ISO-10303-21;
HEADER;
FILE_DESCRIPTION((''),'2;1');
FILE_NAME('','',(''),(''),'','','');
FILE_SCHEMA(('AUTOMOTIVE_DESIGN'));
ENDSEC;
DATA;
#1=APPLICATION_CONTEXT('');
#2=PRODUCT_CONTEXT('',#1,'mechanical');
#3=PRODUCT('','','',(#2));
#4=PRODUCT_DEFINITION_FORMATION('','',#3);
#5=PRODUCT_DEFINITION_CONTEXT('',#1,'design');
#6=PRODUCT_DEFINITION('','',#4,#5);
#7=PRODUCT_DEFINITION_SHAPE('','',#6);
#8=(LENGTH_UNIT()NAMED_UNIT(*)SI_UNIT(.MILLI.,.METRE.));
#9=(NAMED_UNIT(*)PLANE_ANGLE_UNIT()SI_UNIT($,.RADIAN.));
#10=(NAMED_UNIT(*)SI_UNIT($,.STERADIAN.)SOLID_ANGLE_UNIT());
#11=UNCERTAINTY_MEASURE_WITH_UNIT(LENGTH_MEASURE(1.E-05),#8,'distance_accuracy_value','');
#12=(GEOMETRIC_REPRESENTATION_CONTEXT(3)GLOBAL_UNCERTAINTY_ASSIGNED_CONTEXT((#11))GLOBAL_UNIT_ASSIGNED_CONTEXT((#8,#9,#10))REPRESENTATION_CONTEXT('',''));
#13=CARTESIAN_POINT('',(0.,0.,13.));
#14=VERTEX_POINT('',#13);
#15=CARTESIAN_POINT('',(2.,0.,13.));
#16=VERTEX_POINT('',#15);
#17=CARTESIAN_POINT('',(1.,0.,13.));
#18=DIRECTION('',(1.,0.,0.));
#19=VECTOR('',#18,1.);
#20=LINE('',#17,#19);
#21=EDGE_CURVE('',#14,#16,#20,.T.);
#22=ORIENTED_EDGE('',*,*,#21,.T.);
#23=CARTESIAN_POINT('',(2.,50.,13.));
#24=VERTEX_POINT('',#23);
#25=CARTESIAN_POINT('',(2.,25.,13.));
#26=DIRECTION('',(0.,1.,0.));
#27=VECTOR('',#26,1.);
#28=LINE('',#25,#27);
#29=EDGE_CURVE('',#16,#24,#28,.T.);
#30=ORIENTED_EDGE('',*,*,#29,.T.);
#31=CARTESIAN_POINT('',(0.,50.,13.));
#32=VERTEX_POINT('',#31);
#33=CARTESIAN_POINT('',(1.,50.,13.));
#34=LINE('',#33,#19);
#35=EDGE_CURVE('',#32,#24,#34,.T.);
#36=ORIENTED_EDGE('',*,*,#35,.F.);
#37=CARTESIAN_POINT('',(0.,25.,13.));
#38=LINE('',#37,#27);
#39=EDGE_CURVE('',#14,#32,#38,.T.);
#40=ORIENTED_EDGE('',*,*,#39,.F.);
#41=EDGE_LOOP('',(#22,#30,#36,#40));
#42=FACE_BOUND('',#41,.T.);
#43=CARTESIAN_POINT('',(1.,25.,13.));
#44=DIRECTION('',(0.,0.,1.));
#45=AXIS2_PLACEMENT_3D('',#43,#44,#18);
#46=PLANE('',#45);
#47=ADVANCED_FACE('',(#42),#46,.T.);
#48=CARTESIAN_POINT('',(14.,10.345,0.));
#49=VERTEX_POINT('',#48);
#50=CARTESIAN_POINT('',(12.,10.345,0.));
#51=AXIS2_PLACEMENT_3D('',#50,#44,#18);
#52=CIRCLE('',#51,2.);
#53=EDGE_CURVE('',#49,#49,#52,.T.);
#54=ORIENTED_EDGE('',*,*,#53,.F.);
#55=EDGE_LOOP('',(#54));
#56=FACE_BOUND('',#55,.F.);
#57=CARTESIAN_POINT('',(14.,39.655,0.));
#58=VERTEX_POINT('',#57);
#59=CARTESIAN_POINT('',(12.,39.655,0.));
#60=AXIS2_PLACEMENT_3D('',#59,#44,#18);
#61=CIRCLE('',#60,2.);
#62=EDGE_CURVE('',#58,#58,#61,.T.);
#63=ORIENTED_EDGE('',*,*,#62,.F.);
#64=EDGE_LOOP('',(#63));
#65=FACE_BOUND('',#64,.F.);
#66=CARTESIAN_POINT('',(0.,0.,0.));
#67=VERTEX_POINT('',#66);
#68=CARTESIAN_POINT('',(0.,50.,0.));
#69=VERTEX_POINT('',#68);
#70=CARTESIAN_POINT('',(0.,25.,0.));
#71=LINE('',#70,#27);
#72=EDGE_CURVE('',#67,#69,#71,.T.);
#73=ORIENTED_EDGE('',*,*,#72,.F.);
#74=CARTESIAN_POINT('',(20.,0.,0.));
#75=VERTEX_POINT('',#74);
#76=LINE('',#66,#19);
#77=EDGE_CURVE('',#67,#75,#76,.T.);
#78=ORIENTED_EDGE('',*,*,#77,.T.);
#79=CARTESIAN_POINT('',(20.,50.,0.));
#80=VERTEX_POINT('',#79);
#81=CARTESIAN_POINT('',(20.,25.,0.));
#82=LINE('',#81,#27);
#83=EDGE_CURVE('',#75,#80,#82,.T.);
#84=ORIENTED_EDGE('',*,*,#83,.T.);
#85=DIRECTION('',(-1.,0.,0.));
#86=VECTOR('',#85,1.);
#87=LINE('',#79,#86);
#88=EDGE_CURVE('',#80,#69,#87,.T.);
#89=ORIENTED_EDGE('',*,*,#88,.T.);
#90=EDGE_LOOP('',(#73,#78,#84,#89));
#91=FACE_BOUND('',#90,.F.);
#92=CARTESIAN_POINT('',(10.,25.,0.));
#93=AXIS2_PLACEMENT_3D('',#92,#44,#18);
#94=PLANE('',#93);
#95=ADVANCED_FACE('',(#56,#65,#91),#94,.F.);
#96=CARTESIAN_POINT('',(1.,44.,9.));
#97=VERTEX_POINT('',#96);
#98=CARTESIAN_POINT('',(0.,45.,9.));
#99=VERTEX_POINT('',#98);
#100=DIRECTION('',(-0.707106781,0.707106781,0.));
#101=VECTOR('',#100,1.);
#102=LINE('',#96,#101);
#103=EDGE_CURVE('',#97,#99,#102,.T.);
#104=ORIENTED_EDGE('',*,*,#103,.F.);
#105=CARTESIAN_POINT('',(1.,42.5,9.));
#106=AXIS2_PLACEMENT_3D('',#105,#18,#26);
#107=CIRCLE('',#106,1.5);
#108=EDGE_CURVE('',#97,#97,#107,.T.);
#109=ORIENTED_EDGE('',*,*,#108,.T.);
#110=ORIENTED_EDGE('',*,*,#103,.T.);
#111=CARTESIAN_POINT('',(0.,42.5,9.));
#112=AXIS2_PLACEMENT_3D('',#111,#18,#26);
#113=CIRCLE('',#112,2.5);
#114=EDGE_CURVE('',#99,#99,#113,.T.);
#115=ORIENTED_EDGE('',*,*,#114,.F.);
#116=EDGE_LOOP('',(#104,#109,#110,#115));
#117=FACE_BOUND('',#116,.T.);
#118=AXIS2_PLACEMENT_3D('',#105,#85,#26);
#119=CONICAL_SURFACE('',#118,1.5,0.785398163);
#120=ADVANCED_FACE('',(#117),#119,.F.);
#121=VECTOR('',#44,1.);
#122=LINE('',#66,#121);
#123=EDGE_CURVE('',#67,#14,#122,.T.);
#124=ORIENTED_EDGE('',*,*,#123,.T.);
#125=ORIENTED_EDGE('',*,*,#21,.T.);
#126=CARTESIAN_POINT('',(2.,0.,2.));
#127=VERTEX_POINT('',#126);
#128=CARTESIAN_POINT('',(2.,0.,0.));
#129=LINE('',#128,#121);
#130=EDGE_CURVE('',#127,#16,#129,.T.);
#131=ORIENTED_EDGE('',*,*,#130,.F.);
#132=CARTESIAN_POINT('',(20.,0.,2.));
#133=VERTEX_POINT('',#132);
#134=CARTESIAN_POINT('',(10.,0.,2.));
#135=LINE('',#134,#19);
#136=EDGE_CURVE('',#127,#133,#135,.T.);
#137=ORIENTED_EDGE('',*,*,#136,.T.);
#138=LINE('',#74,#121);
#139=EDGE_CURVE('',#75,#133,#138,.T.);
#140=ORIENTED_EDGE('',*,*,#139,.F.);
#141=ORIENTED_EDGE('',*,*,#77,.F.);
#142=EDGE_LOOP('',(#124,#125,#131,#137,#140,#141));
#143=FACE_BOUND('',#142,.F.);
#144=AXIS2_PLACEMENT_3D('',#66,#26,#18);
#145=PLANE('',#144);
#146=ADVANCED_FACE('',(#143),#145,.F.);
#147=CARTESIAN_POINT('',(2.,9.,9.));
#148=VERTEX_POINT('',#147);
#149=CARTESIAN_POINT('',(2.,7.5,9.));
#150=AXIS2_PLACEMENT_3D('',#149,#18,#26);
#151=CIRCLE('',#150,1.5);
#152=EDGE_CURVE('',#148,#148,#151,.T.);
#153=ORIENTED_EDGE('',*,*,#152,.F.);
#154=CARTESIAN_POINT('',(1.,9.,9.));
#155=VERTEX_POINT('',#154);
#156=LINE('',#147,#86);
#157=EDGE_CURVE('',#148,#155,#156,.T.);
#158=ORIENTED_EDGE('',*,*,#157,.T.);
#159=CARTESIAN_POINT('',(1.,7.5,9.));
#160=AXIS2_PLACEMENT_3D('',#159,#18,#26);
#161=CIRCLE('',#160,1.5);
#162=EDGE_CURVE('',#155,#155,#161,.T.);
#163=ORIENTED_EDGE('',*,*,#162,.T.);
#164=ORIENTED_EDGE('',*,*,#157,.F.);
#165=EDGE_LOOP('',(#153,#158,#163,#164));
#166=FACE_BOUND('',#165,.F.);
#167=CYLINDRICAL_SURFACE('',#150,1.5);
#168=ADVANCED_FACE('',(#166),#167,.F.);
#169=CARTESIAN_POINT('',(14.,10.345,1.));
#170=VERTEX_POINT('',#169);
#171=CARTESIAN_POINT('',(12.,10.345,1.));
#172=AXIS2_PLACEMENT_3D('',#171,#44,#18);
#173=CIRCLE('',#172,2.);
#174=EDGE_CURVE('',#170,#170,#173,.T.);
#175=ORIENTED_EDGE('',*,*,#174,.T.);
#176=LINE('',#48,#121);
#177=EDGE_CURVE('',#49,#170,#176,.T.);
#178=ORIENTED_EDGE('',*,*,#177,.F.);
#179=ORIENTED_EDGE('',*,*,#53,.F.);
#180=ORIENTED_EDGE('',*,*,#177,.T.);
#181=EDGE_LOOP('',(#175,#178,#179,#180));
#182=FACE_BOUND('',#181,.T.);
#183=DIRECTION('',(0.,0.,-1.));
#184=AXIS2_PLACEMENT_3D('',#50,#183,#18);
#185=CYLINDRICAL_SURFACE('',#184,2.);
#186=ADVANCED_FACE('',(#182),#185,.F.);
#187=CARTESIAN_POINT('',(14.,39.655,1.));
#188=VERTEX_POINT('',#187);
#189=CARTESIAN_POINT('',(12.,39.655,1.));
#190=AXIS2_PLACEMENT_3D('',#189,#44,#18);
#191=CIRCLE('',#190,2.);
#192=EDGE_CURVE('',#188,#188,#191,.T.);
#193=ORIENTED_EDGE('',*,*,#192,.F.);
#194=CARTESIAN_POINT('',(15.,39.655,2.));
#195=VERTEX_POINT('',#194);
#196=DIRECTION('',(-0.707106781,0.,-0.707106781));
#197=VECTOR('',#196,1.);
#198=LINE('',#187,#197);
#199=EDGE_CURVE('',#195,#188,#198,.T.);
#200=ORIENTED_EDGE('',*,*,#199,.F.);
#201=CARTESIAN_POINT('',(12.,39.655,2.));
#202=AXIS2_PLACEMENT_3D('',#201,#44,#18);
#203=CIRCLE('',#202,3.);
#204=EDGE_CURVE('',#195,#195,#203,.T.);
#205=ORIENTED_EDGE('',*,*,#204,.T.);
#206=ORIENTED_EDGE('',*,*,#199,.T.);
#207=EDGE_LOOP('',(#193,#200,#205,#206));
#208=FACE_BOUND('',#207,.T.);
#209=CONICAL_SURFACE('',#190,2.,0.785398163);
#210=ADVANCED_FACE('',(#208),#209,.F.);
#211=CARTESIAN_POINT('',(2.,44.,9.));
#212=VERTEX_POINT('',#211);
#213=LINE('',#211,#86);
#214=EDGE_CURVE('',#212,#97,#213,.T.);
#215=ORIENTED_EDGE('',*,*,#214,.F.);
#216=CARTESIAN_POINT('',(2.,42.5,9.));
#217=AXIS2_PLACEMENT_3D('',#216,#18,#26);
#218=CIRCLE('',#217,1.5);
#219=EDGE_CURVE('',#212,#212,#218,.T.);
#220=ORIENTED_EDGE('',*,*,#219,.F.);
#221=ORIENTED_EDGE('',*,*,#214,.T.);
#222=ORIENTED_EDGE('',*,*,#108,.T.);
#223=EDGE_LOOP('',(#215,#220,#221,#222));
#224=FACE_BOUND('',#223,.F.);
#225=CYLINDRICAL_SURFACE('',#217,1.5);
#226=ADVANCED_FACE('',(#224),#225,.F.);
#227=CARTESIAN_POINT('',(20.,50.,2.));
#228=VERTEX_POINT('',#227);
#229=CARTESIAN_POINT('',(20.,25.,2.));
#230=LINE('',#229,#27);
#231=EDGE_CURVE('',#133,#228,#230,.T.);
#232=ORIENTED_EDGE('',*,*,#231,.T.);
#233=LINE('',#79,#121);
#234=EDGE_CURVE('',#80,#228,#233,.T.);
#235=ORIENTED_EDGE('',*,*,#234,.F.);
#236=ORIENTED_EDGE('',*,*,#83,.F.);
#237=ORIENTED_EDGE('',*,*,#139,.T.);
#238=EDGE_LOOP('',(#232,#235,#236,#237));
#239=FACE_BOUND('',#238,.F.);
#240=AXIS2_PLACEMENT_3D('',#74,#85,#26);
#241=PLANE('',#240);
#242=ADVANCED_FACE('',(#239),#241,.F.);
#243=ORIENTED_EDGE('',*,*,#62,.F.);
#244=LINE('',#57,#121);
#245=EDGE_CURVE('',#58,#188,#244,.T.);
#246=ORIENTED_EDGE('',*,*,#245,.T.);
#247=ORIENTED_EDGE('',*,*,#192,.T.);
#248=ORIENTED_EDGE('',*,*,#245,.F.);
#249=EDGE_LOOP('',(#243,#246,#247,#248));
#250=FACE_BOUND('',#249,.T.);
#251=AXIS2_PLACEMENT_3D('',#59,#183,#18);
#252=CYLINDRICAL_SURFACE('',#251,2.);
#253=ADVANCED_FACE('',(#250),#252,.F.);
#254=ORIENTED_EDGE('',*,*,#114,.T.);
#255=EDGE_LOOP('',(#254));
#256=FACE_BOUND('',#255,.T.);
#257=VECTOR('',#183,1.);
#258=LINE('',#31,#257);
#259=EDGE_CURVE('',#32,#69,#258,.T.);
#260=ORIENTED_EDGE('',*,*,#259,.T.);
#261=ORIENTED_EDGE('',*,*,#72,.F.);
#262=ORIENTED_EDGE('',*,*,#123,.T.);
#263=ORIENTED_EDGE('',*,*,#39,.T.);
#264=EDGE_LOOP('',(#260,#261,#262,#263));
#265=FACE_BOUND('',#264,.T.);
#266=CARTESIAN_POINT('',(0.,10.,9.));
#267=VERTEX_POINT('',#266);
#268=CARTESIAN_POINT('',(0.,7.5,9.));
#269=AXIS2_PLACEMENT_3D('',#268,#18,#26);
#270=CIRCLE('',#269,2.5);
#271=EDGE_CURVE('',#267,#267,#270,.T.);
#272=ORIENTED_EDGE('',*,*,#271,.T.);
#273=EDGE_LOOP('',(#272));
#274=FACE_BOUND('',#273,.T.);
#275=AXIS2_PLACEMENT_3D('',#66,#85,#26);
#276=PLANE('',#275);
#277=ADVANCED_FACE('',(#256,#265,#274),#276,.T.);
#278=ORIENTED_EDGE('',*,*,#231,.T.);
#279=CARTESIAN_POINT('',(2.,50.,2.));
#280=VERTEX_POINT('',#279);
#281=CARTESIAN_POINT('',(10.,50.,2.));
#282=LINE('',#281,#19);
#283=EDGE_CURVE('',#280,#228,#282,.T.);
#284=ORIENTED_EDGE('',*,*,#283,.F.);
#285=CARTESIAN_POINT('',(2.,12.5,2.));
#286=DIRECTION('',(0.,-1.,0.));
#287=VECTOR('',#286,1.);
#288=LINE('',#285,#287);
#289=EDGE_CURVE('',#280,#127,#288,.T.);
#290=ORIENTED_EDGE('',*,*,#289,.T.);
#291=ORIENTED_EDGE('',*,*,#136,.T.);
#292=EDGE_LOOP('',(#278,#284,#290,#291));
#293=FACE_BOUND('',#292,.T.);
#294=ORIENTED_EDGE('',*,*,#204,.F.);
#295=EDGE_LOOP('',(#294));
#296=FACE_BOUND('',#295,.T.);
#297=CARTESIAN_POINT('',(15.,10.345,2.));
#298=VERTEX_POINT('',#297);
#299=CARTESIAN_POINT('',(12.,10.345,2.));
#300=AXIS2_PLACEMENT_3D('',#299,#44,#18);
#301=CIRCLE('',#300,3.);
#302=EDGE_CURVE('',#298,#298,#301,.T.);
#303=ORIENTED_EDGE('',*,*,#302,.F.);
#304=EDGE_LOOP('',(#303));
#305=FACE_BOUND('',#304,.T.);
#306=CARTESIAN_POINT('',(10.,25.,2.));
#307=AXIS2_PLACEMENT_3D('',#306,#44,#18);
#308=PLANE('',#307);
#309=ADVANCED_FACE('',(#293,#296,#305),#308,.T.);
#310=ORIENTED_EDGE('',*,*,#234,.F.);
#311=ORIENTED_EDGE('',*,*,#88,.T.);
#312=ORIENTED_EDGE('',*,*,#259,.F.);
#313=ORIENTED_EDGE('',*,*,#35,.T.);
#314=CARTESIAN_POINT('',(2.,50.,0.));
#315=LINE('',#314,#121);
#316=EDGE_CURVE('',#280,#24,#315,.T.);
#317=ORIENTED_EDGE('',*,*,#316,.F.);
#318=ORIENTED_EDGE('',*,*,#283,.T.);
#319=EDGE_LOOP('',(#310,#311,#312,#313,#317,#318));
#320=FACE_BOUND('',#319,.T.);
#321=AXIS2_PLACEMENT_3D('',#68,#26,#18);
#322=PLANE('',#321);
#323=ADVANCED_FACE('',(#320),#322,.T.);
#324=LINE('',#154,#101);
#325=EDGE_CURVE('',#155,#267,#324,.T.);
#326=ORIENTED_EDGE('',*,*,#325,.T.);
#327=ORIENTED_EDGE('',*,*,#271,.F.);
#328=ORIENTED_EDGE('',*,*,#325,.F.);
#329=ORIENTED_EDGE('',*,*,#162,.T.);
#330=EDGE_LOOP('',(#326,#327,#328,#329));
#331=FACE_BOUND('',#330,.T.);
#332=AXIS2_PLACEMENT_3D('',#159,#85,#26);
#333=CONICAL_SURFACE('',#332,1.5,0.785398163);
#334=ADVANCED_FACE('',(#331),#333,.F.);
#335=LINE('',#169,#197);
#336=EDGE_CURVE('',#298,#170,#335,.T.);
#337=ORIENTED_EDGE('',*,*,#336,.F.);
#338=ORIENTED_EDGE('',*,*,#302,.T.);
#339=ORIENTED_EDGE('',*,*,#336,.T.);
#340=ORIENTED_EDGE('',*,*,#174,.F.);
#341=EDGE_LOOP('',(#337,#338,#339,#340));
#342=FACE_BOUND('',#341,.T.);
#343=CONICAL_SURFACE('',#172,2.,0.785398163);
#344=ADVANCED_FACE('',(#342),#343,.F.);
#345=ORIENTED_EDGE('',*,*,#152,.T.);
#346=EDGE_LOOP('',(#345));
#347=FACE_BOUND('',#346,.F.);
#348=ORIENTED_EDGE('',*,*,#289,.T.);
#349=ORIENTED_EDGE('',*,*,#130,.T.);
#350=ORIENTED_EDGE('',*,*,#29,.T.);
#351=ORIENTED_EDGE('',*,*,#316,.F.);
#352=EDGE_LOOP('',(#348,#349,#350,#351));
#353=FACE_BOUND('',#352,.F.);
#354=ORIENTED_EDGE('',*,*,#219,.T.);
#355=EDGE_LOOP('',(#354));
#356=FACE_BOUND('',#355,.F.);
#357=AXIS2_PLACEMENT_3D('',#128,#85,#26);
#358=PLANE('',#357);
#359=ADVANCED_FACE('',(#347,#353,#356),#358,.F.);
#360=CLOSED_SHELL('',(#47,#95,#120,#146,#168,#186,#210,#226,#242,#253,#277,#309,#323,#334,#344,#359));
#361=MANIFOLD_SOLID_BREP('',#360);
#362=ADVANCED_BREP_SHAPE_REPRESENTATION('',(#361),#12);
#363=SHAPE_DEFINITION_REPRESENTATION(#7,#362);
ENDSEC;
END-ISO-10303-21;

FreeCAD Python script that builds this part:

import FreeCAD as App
import Part
import Sketcher
Q = App.Units.Quantity


def edges_at(feature, points):
    """Names of the edges that pass closest to the given points."""
    edges = feature.Shape.Edges
    near = lambda p: min(range(len(edges)), key=lambda i: edges[i].distToShape(Part.Vertex(*p))[0])
    return sorted({f"Edge{near(p) + 1}" for p in points})

doc = App.newDocument("Part")
params = doc.addObject("Spreadsheet::Sheet", "Params")
for row, (alias, value) in enumerate([
    ("sketch1_diameter", "4 mm"),
    ("sketch1_width", "20 mm"),
    ("sketch1_height", "50 mm"),
    ("pad1_length", "2 mm"),
    ("sketch2_width", "2 mm"),
    ("sketch2_height", "50 mm"),
    ("pad2_length", "13 mm"),
    ("sketch3_diameter", "3 mm"),
    ("pocket1_length", "10 mm"),
    ("chamfer_size", "1 mm"),
    ("chamfer2_size", "1 mm"),
], start=1):
    params.set(f"A{row}", alias)
    params.set(f"B{row}", "=" + value)
    params.setAlias(f"B{row}", alias)

body = doc.addObject("PartDesign::Body", "Body")

# Sketch on XY plane
sketch1 = body.newObject("Sketcher::SketchObject", "Sketch")
sketch1.AttachmentSupport = (doc.getObject("XY_Plane"), [""])
sketch1.MapMode = "FlatFace"
sketch1.addGeometry(Part.LineSegment(App.Vector(0, 50, 0), App.Vector(0, 0, 0)), False)
sketch1.addGeometry(Part.LineSegment(App.Vector(0, 0, 0), App.Vector(20, 0, 0)), False)
sketch1.addGeometry(Part.LineSegment(App.Vector(20, 0, 0), App.Vector(20, 50, 0)), False)
sketch1.addGeometry(Part.LineSegment(App.Vector(20, 50, 0), App.Vector(0, 50, 0)), False)
sketch1.addGeometry(Part.Circle(App.Vector(12, 10.3, 0), App.Vector(0, 0, 1), 2), False)
sketch1.addGeometry(Part.Circle(App.Vector(12, 39.7, 0), App.Vector(0, 0, 1), 2), False)
sketch1.addConstraint(Sketcher.Constraint("Coincident", 0, 2, 1, 1))
sketch1.addConstraint(Sketcher.Constraint("Coincident", 1, 2, 2, 1))
sketch1.addConstraint(Sketcher.Constraint("Coincident", 2, 2, 3, 1))
sketch1.addConstraint(Sketcher.Constraint("Coincident", 3, 2, 0, 1))
sketch1.addConstraint(Sketcher.Constraint("Vertical", 0))
sketch1.addConstraint(Sketcher.Constraint("Horizontal", 1))
sketch1.addConstraint(Sketcher.Constraint("Vertical", 2))
sketch1.addConstraint(Sketcher.Constraint("Horizontal", 3))
sketch1.addConstraint(Sketcher.Constraint("Coincident", 0, 2, -1, 1))
sketch1.addConstraint(Sketcher.Constraint("Equal", 4, 5))
sketch1.addConstraint(Sketcher.Constraint("Vertical", 4, 3, 5, 3))
sketch1.addConstraint(Sketcher.Constraint("Diameter", 4, Q("4 mm")))
sketch1.addConstraint(Sketcher.Constraint("DistanceX", 1, 1, 1, 2, Q("20 mm")))
sketch1.addConstraint(Sketcher.Constraint("DistanceY", 0, 2, 0, 1, Q("50 mm")))
sketch1.addConstraint(Sketcher.Constraint("DistanceX", -1, 1, 4, 3, Q("12 mm")))
sketch1.addConstraint(Sketcher.Constraint("DistanceY", 4, 3, 5, 3, Q("29.31 mm")))
sketch1.addConstraint(Sketcher.Constraint("DistanceY", -1, 1, 4, 3, Q("10.345 mm")))
sketch1.setExpression("Constraints[11]", "Params.sketch1_diameter")
sketch1.setExpression("Constraints[12]", "Params.sketch1_width")
sketch1.setExpression("Constraints[13]", "Params.sketch1_height")
pad1 = body.newObject("PartDesign::Pad", "Pad")
pad1.Profile = sketch1
pad1.setExpression("Length", "Params.pad1_length")

# Sketch on XY plane
sketch2 = body.newObject("Sketcher::SketchObject", "Sketch001")
sketch2.AttachmentSupport = (doc.getObject("XY_Plane"), [""])
sketch2.MapMode = "FlatFace"
sketch2.addGeometry(Part.LineSegment(App.Vector(0, 50, 0), App.Vector(0, 0, 0)), False)
sketch2.addGeometry(Part.LineSegment(App.Vector(0, 0, 0), App.Vector(2, 0, 0)), False)
sketch2.addGeometry(Part.LineSegment(App.Vector(2, 0, 0), App.Vector(2, 50, 0)), False)
sketch2.addGeometry(Part.LineSegment(App.Vector(2, 50, 0), App.Vector(0, 50, 0)), False)
sketch2.addConstraint(Sketcher.Constraint("Coincident", 0, 2, 1, 1))
sketch2.addConstraint(Sketcher.Constraint("Coincident", 1, 2, 2, 1))
sketch2.addConstraint(Sketcher.Constraint("Coincident", 2, 2, 3, 1))
sketch2.addConstraint(Sketcher.Constraint("Coincident", 3, 2, 0, 1))
sketch2.addConstraint(Sketcher.Constraint("Vertical", 0))
sketch2.addConstraint(Sketcher.Constraint("Horizontal", 1))
sketch2.addConstraint(Sketcher.Constraint("Vertical", 2))
sketch2.addConstraint(Sketcher.Constraint("Horizontal", 3))
sketch2.addConstraint(Sketcher.Constraint("Coincident", 0, 2, -1, 1))
sketch2.addConstraint(Sketcher.Constraint("DistanceX", 1, 1, 1, 2, Q("2 mm")))
sketch2.addConstraint(Sketcher.Constraint("DistanceY", 0, 2, 0, 1, Q("50 mm")))
sketch2.setExpression("Constraints[9]", "Params.sketch2_width")
sketch2.setExpression("Constraints[10]", "Params.sketch2_height")
pad2 = body.newObject("PartDesign::Pad", "Pad001")
pad2.Profile = sketch2
pad2.setExpression("Length", "Params.pad2_length")

# Sketch on YZ plane
sketch3 = body.newObject("Sketcher::SketchObject", "Sketch002")
sketch3.AttachmentSupport = (doc.getObject("YZ_Plane"), [""])
sketch3.MapMode = "FlatFace"
sketch3.AttachmentOffset = App.Placement(App.Vector(0, 0, 2), App.Rotation())
sketch3.addGeometry(Part.Circle(App.Vector(7.5, 9, 0), App.Vector(0, 0, 1), 1.5), False)
sketch3.addGeometry(Part.Circle(App.Vector(42.5, 9, 0), App.Vector(0, 0, 1), 1.5), False)
sketch3.addConstraint(Sketcher.Constraint("Equal", 0, 1))
sketch3.addConstraint(Sketcher.Constraint("Horizontal", 0, 3, 1, 3))
sketch3.addConstraint(Sketcher.Constraint("Diameter", 0, Q("3 mm")))
sketch3.addConstraint(Sketcher.Constraint("DistanceY", -1, 1, 0, 3, Q("9 mm")))
sketch3.addConstraint(Sketcher.Constraint("DistanceX", 0, 3, 1, 3, Q("35 mm")))
sketch3.addConstraint(Sketcher.Constraint("DistanceX", -1, 1, 0, 3, Q("7.5 mm")))
sketch3.setExpression("Constraints[2]", "Params.sketch3_diameter")
pocket1 = body.newObject("PartDesign::Pocket", "Pocket")
pocket1.Profile = sketch3
pocket1.setExpression("Length", "Params.pocket1_length")
doc.recompute()

chamfer = body.newObject("PartDesign::Chamfer", "Chamfer")
chamfer.Base = (pocket1, edges_at(pocket1, [(10, 39.655, 2), (10, 10.345, 2)]))
chamfer.setExpression("Size", "Params.chamfer_size")
doc.recompute()

chamfer2 = body.newObject("PartDesign::Chamfer", "Chamfer001")
chamfer2.Base = (chamfer, edges_at(chamfer, [(0, 41, 9), (0, 6, 9)]))
chamfer2.setExpression("Size", "Params.chamfer2_size")

doc.recompute()
